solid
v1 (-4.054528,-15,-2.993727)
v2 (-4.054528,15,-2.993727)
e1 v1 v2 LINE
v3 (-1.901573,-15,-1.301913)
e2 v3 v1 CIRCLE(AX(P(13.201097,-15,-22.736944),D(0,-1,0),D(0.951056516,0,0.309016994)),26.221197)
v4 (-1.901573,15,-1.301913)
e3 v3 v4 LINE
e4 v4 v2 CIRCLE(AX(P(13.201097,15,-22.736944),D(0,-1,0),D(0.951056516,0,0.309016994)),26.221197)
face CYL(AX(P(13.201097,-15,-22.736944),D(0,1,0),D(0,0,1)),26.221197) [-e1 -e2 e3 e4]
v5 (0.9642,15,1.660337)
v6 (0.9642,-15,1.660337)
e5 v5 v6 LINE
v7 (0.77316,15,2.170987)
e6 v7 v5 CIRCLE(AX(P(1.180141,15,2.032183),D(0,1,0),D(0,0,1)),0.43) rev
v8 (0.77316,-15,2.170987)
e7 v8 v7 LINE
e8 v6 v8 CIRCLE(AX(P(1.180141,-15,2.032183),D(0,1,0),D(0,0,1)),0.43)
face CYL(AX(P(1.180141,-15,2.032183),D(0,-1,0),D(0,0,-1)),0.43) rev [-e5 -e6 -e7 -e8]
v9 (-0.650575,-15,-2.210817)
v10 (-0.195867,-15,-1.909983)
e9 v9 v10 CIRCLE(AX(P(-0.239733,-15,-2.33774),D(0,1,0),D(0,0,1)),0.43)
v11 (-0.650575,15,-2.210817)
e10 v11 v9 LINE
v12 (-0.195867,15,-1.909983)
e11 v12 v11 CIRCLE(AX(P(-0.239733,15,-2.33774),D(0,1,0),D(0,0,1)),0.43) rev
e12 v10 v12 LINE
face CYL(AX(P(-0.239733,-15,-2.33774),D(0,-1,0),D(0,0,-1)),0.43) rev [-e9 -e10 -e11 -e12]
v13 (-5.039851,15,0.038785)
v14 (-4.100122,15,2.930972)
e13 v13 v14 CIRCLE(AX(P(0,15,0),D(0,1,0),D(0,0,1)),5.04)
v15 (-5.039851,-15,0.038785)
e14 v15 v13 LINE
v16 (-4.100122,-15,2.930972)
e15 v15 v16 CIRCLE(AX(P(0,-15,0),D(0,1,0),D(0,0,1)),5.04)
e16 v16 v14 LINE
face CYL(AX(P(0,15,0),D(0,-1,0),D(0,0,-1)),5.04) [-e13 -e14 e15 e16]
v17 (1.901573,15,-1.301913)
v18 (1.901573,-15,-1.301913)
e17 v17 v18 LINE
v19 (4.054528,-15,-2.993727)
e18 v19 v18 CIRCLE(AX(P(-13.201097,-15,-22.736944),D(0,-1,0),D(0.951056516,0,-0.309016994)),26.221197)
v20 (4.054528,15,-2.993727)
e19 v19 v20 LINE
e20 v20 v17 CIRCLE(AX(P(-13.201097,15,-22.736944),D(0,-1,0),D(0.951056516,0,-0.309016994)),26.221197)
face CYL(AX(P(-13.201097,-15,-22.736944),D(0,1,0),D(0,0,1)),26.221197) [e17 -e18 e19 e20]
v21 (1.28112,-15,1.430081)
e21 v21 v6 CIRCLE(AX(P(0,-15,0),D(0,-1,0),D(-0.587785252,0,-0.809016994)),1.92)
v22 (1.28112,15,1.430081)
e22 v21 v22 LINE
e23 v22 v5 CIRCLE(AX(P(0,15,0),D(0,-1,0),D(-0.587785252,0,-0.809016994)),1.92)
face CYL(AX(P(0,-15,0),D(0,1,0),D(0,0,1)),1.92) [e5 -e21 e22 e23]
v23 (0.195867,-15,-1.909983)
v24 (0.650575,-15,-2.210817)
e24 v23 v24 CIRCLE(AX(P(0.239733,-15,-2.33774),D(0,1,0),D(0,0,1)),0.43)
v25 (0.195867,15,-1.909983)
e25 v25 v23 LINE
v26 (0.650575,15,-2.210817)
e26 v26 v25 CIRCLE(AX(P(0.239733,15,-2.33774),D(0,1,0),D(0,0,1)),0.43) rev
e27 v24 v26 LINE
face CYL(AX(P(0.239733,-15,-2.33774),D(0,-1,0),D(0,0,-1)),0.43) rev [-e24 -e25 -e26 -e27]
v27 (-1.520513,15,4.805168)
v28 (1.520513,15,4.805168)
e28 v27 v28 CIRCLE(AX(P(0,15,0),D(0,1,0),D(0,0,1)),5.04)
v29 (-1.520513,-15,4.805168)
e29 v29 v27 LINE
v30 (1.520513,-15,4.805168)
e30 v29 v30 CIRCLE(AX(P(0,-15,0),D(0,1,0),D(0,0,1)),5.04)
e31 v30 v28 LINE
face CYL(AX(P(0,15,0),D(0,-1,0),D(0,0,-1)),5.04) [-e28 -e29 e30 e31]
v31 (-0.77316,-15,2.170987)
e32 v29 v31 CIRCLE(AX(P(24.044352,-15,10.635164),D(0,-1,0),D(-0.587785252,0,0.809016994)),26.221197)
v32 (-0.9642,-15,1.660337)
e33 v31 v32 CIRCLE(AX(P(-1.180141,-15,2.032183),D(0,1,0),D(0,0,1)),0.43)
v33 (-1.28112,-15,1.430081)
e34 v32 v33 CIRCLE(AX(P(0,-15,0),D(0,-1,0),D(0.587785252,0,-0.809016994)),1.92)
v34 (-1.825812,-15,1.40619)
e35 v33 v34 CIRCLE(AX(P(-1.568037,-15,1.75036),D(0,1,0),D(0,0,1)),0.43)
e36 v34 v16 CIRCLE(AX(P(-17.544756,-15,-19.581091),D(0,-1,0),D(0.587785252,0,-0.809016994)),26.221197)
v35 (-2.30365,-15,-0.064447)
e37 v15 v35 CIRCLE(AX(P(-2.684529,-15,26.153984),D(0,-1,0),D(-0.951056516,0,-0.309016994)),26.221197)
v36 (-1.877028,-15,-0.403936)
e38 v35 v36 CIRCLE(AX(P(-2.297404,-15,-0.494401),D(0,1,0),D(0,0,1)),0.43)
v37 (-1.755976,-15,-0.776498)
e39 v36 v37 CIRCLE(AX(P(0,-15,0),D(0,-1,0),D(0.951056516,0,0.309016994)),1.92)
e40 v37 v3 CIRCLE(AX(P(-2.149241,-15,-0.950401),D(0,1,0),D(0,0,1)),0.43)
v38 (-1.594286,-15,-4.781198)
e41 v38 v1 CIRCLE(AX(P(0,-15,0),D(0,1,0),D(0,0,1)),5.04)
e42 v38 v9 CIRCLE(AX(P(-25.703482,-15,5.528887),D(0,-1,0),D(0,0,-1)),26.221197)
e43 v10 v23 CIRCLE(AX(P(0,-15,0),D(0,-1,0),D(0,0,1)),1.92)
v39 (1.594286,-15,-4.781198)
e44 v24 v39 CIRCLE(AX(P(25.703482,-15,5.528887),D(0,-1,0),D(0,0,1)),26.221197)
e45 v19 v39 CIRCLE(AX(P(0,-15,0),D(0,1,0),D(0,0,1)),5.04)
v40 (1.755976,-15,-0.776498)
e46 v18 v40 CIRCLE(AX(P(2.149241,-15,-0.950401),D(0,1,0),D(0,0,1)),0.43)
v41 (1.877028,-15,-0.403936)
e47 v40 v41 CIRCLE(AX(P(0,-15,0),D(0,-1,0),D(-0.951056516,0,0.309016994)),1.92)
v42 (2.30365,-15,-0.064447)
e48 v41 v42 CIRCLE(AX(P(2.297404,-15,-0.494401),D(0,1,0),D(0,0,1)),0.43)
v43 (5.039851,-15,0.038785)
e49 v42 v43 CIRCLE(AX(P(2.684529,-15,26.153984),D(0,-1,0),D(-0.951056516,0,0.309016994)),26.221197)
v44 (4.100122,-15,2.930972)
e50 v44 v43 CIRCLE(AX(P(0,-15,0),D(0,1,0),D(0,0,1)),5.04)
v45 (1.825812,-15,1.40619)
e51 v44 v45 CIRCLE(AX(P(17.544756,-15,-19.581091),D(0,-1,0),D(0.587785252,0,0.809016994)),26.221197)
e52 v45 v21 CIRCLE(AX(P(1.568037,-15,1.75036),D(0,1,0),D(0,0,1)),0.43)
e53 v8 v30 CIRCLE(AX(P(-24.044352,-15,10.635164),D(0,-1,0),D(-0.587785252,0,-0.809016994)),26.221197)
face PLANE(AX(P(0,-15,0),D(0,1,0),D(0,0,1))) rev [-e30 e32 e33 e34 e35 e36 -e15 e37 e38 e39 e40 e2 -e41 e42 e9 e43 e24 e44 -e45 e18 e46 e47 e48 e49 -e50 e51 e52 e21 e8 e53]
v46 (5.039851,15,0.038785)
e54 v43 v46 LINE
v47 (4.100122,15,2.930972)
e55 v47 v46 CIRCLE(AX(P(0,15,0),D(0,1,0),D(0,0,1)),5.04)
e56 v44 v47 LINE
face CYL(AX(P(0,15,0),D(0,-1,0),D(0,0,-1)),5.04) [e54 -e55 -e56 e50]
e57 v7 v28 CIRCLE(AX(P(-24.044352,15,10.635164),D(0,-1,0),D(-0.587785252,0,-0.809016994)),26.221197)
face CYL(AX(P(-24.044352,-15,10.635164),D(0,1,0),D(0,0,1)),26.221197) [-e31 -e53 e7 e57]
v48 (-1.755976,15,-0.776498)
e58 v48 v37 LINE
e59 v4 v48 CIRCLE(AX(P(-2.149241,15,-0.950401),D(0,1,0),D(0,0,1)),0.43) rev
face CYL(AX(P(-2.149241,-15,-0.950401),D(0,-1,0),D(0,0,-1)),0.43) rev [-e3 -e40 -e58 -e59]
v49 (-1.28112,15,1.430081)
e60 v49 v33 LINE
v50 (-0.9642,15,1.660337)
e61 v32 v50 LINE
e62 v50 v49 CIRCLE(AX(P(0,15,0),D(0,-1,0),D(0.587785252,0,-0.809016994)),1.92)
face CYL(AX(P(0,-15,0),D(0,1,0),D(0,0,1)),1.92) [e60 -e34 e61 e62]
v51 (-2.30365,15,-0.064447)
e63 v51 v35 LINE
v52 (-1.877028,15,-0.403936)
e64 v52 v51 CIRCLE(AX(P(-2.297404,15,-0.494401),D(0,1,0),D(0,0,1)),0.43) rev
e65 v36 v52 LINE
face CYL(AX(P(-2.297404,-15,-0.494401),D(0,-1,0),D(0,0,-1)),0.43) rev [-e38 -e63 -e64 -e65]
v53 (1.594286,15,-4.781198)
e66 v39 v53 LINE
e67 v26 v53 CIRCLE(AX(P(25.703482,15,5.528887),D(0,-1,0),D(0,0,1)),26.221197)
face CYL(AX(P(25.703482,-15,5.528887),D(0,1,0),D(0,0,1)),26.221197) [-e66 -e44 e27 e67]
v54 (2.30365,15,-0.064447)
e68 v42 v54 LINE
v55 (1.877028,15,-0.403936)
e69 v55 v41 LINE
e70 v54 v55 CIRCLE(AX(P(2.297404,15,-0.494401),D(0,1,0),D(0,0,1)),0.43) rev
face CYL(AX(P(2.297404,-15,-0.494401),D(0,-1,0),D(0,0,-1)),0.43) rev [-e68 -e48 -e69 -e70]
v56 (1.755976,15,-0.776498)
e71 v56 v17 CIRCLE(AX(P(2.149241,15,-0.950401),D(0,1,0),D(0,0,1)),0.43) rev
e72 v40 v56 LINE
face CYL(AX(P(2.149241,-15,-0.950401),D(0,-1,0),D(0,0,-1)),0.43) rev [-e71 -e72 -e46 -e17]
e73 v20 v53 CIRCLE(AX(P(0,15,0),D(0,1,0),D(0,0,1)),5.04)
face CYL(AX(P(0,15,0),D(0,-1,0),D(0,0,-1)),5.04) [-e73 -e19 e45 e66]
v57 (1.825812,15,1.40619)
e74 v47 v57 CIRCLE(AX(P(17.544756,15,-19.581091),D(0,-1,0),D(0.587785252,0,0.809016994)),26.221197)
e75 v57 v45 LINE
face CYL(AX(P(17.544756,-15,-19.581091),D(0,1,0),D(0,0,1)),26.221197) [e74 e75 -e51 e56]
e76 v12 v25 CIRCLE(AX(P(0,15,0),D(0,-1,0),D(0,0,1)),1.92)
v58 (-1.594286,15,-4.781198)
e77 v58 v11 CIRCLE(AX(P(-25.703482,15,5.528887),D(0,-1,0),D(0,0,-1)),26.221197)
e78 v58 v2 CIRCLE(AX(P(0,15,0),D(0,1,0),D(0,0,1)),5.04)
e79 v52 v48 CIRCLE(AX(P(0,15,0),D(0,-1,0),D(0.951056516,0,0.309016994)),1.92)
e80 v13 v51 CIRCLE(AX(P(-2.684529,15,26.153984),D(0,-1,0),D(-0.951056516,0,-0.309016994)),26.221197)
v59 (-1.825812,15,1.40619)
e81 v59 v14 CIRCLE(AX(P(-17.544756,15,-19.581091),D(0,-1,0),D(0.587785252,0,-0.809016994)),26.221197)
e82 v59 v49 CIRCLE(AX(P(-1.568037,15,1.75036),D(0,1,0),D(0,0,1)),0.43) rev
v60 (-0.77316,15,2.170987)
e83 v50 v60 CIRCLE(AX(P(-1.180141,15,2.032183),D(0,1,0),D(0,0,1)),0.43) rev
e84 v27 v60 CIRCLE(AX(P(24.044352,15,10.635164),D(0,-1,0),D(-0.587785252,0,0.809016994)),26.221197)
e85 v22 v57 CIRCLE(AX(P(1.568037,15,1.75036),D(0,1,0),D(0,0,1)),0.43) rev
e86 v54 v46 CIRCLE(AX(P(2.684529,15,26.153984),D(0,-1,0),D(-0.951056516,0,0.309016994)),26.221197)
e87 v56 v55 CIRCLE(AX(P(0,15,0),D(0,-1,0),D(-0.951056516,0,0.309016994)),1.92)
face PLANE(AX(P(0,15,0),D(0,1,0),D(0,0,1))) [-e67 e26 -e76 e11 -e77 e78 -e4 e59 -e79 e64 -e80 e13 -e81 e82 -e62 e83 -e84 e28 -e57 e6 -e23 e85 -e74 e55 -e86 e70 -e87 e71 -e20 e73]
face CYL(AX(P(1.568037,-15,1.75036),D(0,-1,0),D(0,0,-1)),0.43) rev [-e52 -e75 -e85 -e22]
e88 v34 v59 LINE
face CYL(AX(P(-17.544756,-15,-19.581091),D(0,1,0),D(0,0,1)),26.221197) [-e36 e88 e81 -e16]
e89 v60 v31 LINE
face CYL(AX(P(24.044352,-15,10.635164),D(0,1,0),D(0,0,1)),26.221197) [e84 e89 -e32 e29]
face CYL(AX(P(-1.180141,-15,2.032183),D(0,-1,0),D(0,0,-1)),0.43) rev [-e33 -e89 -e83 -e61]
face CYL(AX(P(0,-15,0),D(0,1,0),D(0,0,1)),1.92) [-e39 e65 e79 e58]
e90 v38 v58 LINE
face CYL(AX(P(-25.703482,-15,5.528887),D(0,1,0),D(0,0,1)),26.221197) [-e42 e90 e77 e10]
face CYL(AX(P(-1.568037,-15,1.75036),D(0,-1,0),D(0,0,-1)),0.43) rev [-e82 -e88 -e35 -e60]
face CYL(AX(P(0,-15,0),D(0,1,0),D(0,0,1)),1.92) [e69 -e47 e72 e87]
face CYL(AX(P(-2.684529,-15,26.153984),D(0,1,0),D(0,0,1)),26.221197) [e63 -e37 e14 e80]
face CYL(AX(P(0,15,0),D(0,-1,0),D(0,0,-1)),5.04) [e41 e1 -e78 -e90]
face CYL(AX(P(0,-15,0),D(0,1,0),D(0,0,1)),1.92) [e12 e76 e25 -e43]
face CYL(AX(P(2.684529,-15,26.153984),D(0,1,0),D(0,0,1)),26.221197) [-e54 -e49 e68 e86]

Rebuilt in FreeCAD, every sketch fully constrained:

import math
import FreeCAD as App
import Part
import Sketcher
Q = App.Units.Quantity


def edges_at(feature, points):
    """Names of the edges that pass closest to the given points."""
    edges = feature.Shape.Edges
    near = lambda p: min(range(len(edges)), key=lambda i: edges[i].distToShape(Part.Vertex(*p))[0])
    return sorted({f"Edge{near(p) + 1}" for p in points})

doc = App.newDocument("Part")
body = doc.addObject("PartDesign::Body", "Body")

# Sketch on XZ plane
sketch1 = body.newObject("Sketcher::SketchObject", "Sketch")
sketch1.AttachmentSupport = (doc.getObject("XZ_Plane"), [""])
sketch1.MapMode = "FlatFace"
sketch1.addGeometry(Part.Circle(App.Vector(0, 0, 0), App.Vector(0, 0, 1), 5), False)
sketch1.addConstraint([
    Sketcher.Constraint("Coincident", 0, 3, -1, 1),
    Sketcher.Constraint("Diameter", 0, Q("10.08 mm")),
])
pad1 = body.newObject("PartDesign::Pad", "Pad")
pad1.Profile = sketch1
pad1.Length = 30
pad1.Midplane = True

# Sketch on XZ plane
sketch2 = body.newObject("Sketcher::SketchObject", "Sketch001")
sketch2.AttachmentSupport = (doc.getObject("XZ_Plane"), [""])
sketch2.MapMode = "FlatFace"
sketch2.addGeometry([
    Part.ArcOfCircle(Part.Circle(App.Vector(-25.7, 5.5, 0), App.Vector(0, 0, 1), 26.2), math.radians(-23.15), math.radians(-16.33)),
    Part.ArcOfCircle(Part.Circle(App.Vector(0, 0, 0), App.Vector(0, 0, 1), 1.9), math.radians(-106), math.radians(-74)),
    Part.ArcOfCircle(Part.Circle(App.Vector(25.7, 5.5, 0), App.Vector(0, 0, 1), 26.2), math.radians(-163.67), math.radians(-156.85)),
    Part.ArcOfCircle(Part.Circle(App.Vector(0, 0, 0), App.Vector(0, 0, 1), 5), math.radians(-108), math.radians(-72)),
], False)
sketch2.addConstraint([
    Sketcher.Constraint("Coincident", 0, 2, 1, 1),
    Sketcher.Constraint("Coincident", 1, 2, 2, 1),
    Sketcher.Constraint("Coincident", 2, 2, 3, 2),
    Sketcher.Constraint("Coincident", 3, 1, 0, 1),
    Sketcher.Constraint("Coincident", 1, 3, -1, 1),
    Sketcher.Constraint("Coincident", 3, 3, -1, 1),
    Sketcher.Constraint("Equal", 0, 2),
    Sketcher.Constraint("Symmetric", 0, 3, 2, 3, -2),
    Sketcher.Constraint("Radius", 1, Q("1.92 mm")),
    Sketcher.Constraint("Radius", 3, Q("5.04 mm")),
    Sketcher.Constraint("Radius", 0, Q("26.221197 mm")),
    Sketcher.Constraint("DistanceX", 0, 2, -1, 1, Q("0.539762 mm")),
    Sketcher.Constraint("DistanceX", 0, 3, 0, 2, Q("25.163721 mm")),
])
pocket1 = body.newObject("PartDesign::Pocket", "Pocket")
pocket1.Profile = sketch2
pocket1.Length = 30
pocket1.Midplane = True
doc.recompute()

fillet = body.newObject("PartDesign::Fillet", "Fillet")
fillet.Base = (pocket1, edges_at(pocket1, [(0.54, 0, -1.843), (-0.54, 0, -1.843)]))
fillet.Radius = 0.43
doc.recompute()

polarpattern = body.newObject("PartDesign::PolarPattern", "PolarPattern")
polarpattern.Originals = [pocket1]
polarpattern.Axis = (doc.getObject("Y_Axis"), [""])
polarpattern.Angle = 360
polarpattern.Occurrences = 5
body.Tip = polarpattern
doc.recompute()

fillet2 = body.newObject("PartDesign::Fillet", "Fillet001")
fillet2.Base = (polarpattern, edges_at(polarpattern, [
    (-1.586, 0, -1.083),
    (-1.919, 0, -0.056),
    (-1.52, 0, 1.173),
    (-0.646, 0, 1.808),
    (0.646, 0, 1.808),
    (1.52, 0, 1.173),
    (1.919, 0, -0.056),
    (1.586, 0, -1.083),
]))
fillet2.Radius = 0.43

doc.recompute()
